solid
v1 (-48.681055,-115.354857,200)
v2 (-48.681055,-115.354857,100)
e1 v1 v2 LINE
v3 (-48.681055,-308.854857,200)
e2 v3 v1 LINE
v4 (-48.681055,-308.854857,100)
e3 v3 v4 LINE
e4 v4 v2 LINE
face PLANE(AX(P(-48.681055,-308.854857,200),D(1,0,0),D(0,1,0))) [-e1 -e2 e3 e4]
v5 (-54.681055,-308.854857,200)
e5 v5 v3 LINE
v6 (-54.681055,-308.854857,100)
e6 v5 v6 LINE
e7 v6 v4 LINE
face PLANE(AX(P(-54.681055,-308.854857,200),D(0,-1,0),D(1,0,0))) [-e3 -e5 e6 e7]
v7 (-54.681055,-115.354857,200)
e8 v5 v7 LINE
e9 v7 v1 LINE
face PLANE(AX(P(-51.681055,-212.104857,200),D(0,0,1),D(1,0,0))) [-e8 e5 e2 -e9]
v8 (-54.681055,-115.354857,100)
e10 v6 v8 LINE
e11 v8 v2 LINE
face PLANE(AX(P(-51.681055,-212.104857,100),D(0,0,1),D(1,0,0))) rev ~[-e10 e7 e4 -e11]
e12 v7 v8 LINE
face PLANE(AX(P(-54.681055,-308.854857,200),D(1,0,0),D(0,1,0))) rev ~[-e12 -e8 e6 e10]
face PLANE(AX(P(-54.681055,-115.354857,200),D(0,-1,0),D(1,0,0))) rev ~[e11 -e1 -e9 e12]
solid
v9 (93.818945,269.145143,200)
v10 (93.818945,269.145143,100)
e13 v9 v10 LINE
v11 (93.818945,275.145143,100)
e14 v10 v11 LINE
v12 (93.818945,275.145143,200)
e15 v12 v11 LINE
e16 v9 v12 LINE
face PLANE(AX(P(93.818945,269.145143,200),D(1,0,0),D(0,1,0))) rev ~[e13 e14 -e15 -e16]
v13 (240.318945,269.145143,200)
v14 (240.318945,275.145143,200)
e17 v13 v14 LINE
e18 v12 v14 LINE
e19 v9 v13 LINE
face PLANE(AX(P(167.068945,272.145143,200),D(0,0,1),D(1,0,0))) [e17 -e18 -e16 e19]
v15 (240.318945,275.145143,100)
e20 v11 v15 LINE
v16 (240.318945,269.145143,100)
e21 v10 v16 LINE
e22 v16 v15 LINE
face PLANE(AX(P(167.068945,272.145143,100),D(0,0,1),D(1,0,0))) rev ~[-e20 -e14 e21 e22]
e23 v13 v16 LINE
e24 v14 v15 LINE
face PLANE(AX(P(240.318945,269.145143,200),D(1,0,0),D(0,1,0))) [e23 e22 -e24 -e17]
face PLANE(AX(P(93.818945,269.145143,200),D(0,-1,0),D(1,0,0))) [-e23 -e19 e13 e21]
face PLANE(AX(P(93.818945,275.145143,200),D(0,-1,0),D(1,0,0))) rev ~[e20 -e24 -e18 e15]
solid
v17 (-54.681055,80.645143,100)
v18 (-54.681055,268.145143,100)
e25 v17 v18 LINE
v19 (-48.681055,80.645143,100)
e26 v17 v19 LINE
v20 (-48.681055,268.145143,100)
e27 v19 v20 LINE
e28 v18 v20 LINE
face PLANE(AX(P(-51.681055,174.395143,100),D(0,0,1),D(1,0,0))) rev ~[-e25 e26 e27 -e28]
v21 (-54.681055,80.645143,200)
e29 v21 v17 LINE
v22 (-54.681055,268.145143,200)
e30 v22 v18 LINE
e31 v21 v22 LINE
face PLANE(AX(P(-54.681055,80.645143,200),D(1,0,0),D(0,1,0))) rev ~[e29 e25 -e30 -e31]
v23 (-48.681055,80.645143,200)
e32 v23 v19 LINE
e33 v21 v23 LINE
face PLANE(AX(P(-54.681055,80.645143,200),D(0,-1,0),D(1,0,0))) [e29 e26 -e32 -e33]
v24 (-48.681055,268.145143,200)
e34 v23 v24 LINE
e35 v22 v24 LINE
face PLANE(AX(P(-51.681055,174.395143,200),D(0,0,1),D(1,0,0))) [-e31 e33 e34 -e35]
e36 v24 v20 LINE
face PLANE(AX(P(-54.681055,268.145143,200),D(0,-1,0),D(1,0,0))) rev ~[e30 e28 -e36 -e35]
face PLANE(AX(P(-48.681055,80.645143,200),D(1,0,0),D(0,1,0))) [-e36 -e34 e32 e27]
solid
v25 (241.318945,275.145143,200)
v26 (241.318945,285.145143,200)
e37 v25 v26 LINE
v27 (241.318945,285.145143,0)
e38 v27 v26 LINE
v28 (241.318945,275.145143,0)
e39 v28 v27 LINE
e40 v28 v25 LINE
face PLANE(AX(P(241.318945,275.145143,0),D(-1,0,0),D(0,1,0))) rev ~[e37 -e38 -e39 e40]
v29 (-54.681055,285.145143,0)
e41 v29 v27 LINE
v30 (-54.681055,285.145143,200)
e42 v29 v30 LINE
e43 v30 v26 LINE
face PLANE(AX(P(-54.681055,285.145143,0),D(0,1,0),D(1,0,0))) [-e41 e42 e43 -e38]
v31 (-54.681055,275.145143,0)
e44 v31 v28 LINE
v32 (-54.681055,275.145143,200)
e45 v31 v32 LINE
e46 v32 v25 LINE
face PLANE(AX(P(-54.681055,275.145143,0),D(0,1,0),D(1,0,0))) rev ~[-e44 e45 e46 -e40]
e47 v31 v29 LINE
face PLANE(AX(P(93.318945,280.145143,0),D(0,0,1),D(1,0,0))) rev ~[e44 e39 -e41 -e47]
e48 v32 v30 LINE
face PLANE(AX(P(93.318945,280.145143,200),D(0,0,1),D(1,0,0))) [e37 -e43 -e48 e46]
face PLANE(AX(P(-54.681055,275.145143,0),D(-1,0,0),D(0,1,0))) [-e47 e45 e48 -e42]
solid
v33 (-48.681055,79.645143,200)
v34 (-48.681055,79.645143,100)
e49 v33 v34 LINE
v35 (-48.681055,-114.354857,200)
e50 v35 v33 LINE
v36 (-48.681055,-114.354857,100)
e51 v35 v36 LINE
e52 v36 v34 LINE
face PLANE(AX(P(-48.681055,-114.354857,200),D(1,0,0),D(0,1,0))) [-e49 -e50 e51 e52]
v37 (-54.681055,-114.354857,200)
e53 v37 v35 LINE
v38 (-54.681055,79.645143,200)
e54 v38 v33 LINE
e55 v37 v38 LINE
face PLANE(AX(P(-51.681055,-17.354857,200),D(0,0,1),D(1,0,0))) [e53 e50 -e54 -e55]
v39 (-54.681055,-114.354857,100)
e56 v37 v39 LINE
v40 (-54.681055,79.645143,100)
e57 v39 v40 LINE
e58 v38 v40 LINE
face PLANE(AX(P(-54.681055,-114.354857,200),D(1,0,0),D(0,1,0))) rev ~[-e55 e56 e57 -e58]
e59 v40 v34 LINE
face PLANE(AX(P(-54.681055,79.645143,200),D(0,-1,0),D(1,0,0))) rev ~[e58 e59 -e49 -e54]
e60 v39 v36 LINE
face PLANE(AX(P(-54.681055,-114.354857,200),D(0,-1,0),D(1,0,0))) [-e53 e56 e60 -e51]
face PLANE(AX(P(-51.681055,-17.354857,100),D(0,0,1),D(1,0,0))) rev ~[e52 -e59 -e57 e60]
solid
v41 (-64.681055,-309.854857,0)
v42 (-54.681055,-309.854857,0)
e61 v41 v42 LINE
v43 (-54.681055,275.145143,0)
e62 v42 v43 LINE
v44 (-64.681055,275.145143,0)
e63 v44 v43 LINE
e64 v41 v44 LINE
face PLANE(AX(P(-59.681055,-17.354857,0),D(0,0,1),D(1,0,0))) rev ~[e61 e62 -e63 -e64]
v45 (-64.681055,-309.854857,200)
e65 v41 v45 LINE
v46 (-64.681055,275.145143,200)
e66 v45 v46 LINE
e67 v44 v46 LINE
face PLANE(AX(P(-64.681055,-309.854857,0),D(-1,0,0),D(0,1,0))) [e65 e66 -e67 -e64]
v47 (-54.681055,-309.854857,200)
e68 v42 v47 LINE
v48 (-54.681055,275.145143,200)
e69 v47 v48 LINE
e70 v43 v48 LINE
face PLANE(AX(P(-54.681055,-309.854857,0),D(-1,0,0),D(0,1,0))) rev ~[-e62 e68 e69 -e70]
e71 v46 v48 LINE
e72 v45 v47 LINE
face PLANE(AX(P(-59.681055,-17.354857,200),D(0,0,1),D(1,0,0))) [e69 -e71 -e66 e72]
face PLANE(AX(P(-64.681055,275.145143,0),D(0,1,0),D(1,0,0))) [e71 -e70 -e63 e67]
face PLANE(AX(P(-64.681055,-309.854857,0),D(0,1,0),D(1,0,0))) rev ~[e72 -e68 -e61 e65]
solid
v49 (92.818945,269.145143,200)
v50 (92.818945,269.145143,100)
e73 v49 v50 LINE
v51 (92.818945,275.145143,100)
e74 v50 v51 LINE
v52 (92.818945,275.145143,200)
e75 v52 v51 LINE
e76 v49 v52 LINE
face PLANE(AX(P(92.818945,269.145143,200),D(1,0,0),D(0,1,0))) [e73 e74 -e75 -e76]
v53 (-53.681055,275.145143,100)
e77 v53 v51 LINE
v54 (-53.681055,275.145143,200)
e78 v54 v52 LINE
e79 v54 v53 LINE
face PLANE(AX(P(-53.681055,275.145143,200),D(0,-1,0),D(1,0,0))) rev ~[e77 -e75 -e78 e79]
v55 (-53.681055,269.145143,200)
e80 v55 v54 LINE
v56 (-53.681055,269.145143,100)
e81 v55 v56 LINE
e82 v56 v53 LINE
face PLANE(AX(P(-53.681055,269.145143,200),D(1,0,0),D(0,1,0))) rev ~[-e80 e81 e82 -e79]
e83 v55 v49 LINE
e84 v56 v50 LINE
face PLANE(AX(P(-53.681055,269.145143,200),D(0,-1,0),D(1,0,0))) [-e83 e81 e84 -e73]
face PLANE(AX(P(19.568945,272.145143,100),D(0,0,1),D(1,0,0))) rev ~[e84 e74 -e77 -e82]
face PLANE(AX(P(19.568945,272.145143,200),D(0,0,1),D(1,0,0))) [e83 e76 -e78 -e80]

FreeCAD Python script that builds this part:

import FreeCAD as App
import Part
import Sketcher
Q = App.Units.Quantity


def add_polygon(sketch, points):
    """Adds a closed chain of lines whose ends are joined by coincident constraints."""
    first, n = sketch.GeometryCount, len(points)
    for a, b in zip(points, points[1:] + points[:1]):
        sketch.addGeometry(Part.LineSegment(App.Vector(*a, 0), App.Vector(*b, 0)), False)
    for i in range(n):
        sketch.addConstraint(Sketcher.Constraint("Coincident", first + i, 2, first + (i + 1) % n, 1))

doc = App.newDocument("Part")
params = doc.addObject("Spreadsheet::Sheet", "Params")
for row, (alias, value) in enumerate([
    ("sketch1_width", "296 mm"),
    ("sketch1_width2", "10 mm"),
    ("sketch1_height", "585 mm"),
    ("pad1_length", "200 mm"),
    ("sketch2_width", "6 mm"),
    ("sketch2_height", "194 mm"),
    ("sketch2_width2", "146.5 mm"),
    ("sketch2_height2", "187.5 mm"),
    ("sketch2_height3", "193.5 mm"),
    ("pad2_length", "100 mm"),
], start=1):
    params.set(f"A{row}", alias)
    params.set(f"B{row}", "=" + value)
    params.setAlias(f"B{row}", alias)

body = doc.addObject("PartDesign::Body", "Body")
body.AllowCompound = True

# Sketch on XY plane
sketch1 = doc.addObject("Sketcher::SketchObject", "Sketch")
body.addObject(sketch1)
sketch1.AttachmentSupport = (doc.XY_Plane, [""])
sketch1.MapMode = "FlatFace"
add_polygon(sketch1, [(-55, 285), (-55, 275), (241, 275), (241, 285)])  # lines 0-3
add_polygon(sketch1, [(-65, 275), (-65, -310), (-55, -310), (-55, 275)])  # lines 4-7
sketch1.addConstraint([
    Sketcher.Constraint("Vertical", 0),
    Sketcher.Constraint("Horizontal", 1),
    Sketcher.Constraint("Vertical", 2),
    Sketcher.Constraint("Horizontal", 3),
    Sketcher.Constraint("Vertical", 4),
    Sketcher.Constraint("Horizontal", 5),
    Sketcher.Constraint("Vertical", 6),
    Sketcher.Constraint("Horizontal", 7),
    Sketcher.Constraint("Coincident", 6, 2, 0, 2),
    Sketcher.Constraint("Equal", 7, 0),
    Sketcher.Constraint("DistanceX", 1, 1, 1, 2, Q("296 mm")),
    Sketcher.Constraint("DistanceX", 5, 1, 5, 2, Q("10 mm")),
    Sketcher.Constraint("DistanceY", 4, 2, 4, 1, Q("585 mm")),
    Sketcher.Constraint("DistanceX", 0, 2, -1, 1, Q("54.681055 mm")),
    Sketcher.Constraint("DistanceY", -1, 1, 0, 2, Q("275.145143 mm")),
])
sketch1.setExpression("Constraints[18]", "Params.sketch1_width")
sketch1.setExpression("Constraints[19]", "Params.sketch1_width2")
sketch1.setExpression("Constraints[20]", "Params.sketch1_height")
pad1 = doc.addObject("PartDesign::Pad", "Pad")
body.addObject(pad1)
pad1.Profile = sketch1
pad1.setExpression("Length", "Params.pad1_length")
body2 = doc.addObject("PartDesign::Body", "Body001")
body2.AllowCompound = True

# Sketch on XY plane
sketch2 = doc.addObject("Sketcher::SketchObject", "Sketch001")
body2.addObject(sketch2)
sketch2.AttachmentSupport = (doc.getObject("XY_Plane001"), [""])
sketch2.MapMode = "FlatFace"
sketch2.AttachmentOffset = App.Placement(App.Vector(0, 0, 200), App.Rotation())
add_polygon(sketch2, [(-55, 268), (-55, 81), (-49, 81), (-49, 268)])  # lines 0-3
add_polygon(sketch2, [(-55, 80), (-55, -114), (-49, -114), (-49, 80)])  # lines 4-7
add_polygon(sketch2, [(-55, -115), (-55, -309), (-49, -309), (-49, -115)])  # lines 8-11
add_polygon(sketch2, [(-54, 275), (-54, 269), (93, 269), (93, 275)])  # lines 12-15
add_polygon(sketch2, [(94, 275), (94, 269), (240, 269), (240, 275)])  # lines 16-19
sketch2.addConstraint([
    Sketcher.Constraint("Vertical", 0),
    Sketcher.Constraint("Horizontal", 1),
    Sketcher.Constraint("Vertical", 2),
    Sketcher.Constraint("Horizontal", 3),
    Sketcher.Constraint("Vertical", 4),
    Sketcher.Constraint("Horizontal", 5),
    Sketcher.Constraint("Vertical", 6),
    Sketcher.Constraint("Horizontal", 7),
    Sketcher.Constraint("Vertical", 8),
    Sketcher.Constraint("Horizontal", 9),
    Sketcher.Constraint("Vertical", 10),
    Sketcher.Constraint("Horizontal", 11),
    Sketcher.Constraint("Vertical", 12),
    Sketcher.Constraint("Horizontal", 13),
    Sketcher.Constraint("Vertical", 14),
    Sketcher.Constraint("Horizontal", 15),
    Sketcher.Constraint("Vertical", 16),
    Sketcher.Constraint("Horizontal", 17),
    Sketcher.Constraint("Vertical", 18),
    Sketcher.Constraint("Horizontal", 19),
    Sketcher.Constraint("Horizontal", 13, 2, 16, 2),
    Sketcher.Constraint("Horizontal", 15, 2, 18, 2),
    Sketcher.Constraint("Vertical", 3, 2, 4, 2),
    Sketcher.Constraint("Vertical", 2, 2, 5, 2),
    Sketcher.Constraint("Vertical", 7, 2, 8, 2),
    Sketcher.Constraint("Vertical", 6, 2, 9, 2),
    Sketcher.Constraint("Equal", 15, 17),
    Sketcher.Constraint("Equal", 11, 12),
    Sketcher.Constraint("DistanceX", 1, 1, 1, 2, Q("6 mm")),
    Sketcher.Constraint("DistanceY", 4, 2, 4, 1, Q("194 mm")),
    Sketcher.Constraint("DistanceX", 13, 1, 13, 2, Q("146.5 mm")),
    Sketcher.Constraint("DistanceY", 0, 2, 0, 1, Q("187.5 mm")),
    Sketcher.Constraint("DistanceY", 8, 2, 8, 1, Q("193.5 mm")),
    Sketcher.Constraint("DistanceY", 4, 2, 0, 2, Q("195 mm")),
    Sketcher.Constraint("DistanceY", 10, 2, 5, 2, Q("1 mm")),
    Sketcher.Constraint("DistanceX", 3, 2, 12, 2, Q("1 mm")),
    Sketcher.Constraint("DistanceY", 3, 2, 12, 2, Q("1 mm")),
    Sketcher.Constraint("DistanceX", 13, 2, 16, 2, Q("1 mm")),
    Sketcher.Constraint("DistanceX", 0, 2, -1, 1, Q("54.681055 mm")),
    Sketcher.Constraint("DistanceY", -1, 1, 0, 2, Q("80.645143 mm")),
])
sketch2.setExpression("Constraints[48]", "Params.sketch2_width")
sketch2.setExpression("Constraints[49]", "Params.sketch2_height")
sketch2.setExpression("Constraints[50]", "Params.sketch2_width2")
sketch2.setExpression("Constraints[51]", "Params.sketch2_height2")
sketch2.setExpression("Constraints[52]", "Params.sketch2_height3")
pad2 = doc.addObject("PartDesign::Pad", "Pad001")
body2.addObject(pad2)
pad2.Profile = sketch2
pad2.setExpression("Length", "Params.pad2_length")
pad2.Reversed = True

doc.recompute()
